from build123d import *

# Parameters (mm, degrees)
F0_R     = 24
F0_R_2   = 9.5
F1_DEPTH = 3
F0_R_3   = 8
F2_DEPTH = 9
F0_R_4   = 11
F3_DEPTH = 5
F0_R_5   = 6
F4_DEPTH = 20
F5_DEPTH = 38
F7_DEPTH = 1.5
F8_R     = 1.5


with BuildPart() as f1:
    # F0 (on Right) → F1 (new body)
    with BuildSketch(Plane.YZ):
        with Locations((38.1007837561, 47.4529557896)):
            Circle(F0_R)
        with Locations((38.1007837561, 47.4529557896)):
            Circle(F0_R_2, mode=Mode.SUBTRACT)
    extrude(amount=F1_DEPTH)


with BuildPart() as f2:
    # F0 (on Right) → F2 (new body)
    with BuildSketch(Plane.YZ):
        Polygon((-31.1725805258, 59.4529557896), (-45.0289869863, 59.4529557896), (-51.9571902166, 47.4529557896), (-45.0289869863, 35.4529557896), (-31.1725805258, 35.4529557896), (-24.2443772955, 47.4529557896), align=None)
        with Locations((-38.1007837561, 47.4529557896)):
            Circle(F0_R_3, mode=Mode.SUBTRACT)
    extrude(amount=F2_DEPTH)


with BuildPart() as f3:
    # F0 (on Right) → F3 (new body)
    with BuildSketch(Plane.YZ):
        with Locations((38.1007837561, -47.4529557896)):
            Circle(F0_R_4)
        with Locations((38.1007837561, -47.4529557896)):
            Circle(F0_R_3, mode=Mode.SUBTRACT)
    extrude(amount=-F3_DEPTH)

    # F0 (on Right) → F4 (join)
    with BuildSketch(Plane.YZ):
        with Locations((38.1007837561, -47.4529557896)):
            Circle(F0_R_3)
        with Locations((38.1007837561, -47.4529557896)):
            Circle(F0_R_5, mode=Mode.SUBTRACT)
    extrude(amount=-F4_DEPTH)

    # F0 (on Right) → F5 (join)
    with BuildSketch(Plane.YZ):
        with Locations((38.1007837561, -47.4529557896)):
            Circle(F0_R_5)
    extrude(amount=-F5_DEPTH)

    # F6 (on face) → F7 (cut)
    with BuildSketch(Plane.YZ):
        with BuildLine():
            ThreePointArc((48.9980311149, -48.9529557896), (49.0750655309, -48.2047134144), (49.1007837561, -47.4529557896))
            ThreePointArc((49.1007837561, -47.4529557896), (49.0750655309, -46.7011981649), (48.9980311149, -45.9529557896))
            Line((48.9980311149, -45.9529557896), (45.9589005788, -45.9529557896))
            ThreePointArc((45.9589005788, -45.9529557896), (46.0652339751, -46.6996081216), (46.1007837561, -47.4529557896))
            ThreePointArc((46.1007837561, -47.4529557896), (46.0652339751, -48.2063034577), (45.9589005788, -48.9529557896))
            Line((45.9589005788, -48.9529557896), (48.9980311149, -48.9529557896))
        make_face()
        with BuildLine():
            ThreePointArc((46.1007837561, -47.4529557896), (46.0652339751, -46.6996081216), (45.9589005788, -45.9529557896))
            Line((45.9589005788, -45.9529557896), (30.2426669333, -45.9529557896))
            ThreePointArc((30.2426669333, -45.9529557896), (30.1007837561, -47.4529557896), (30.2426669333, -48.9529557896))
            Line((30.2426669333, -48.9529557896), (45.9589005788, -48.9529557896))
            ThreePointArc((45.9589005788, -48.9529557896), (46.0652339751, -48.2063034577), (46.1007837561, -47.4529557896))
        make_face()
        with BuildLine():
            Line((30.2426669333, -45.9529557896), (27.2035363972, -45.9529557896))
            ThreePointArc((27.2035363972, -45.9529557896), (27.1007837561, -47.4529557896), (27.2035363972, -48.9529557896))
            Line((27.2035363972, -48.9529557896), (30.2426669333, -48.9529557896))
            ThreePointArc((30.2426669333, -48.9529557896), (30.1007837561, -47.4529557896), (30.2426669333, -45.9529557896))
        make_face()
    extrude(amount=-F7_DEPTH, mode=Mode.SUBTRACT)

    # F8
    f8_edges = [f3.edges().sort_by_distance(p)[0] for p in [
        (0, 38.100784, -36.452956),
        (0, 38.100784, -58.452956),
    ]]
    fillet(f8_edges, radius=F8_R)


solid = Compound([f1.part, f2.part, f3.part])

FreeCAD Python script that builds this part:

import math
import FreeCAD as App
import Part
import Sketcher
Q = App.Units.Quantity


def edges_at(feature, points):
    """Names of the edges that pass closest to the given points."""
    edges = feature.Shape.Edges
    near = lambda p: min(range(len(edges)), key=lambda i: edges[i].distToShape(Part.Vertex(*p))[0])
    return sorted({f"Edge{near(p) + 1}" for p in points})

doc = App.newDocument("Part")
body = doc.addObject("PartDesign::Body", "Body")

# Sketch on YZ plane
sketch1 = body.newObject("Sketcher::SketchObject", "Sketch")
sketch1.AttachmentSupport = (doc.getObject("YZ_Plane"), [""])
sketch1.MapMode = "FlatFace"
sketch1.addGeometry(Part.Circle(App.Vector(38, 47, 0), App.Vector(0, 0, 1), 24), False)
sketch1.addGeometry(Part.Circle(App.Vector(38, 47, 0), App.Vector(0, 0, 1), 10), False)
sketch1.addConstraint(Sketcher.Constraint("Coincident", 1, 3, 0, 3))
sketch1.addConstraint(Sketcher.Constraint("Diameter", 0, 48.0))
sketch1.addConstraint(Sketcher.Constraint("Diameter", 1, 19.0))
sketch1.addConstraint(Sketcher.Constraint("DistanceX", -1, 1, 0, 3, 38.100784))
sketch1.addConstraint(Sketcher.Constraint("DistanceY", -1, 1, 0, 3, 47.452956))
pad1 = body.newObject("PartDesign::Pad", "Pad")
pad1.Profile = sketch1
pad1.Length = 3
body2 = doc.addObject("PartDesign::Body", "Body001")

# Sketch on YZ plane
sketch2 = body2.newObject("Sketcher::SketchObject", "Sketch001")
sketch2.AttachmentSupport = (doc.getObject("YZ_Plane001"), [""])
sketch2.MapMode = "FlatFace"
sketch2.addGeometry(Part.LineSegment(App.Vector(-31, 59, 0), App.Vector(-45, 59, 0)), False)
sketch2.addGeometry(Part.LineSegment(App.Vector(-45, 59, 0), App.Vector(-52, 47, 0)), False)
sketch2.addGeometry(Part.LineSegment(App.Vector(-52, 47, 0), App.Vector(-45, 35, 0)), False)
sketch2.addGeometry(Part.LineSegment(App.Vector(-45, 35, 0), App.Vector(-31, 35, 0)), False)
sketch2.addGeometry(Part.LineSegment(App.Vector(-31, 35, 0), App.Vector(-24, 47, 0)), False)
sketch2.addGeometry(Part.LineSegment(App.Vector(-24, 47, 0), App.Vector(-31, 59, 0)), False)
sketch2.addGeometry(Part.Circle(App.Vector(-38, 47, 0), App.Vector(0, 0, 1), 8), False)
sketch2.addConstraint(Sketcher.Constraint("Coincident", 0, 2, 1, 1))
sketch2.addConstraint(Sketcher.Constraint("Coincident", 1, 2, 2, 1))
sketch2.addConstraint(Sketcher.Constraint("Coincident", 2, 2, 3, 1))
sketch2.addConstraint(Sketcher.Constraint("Coincident", 3, 2, 4, 1))
sketch2.addConstraint(Sketcher.Constraint("Coincident", 4, 2, 5, 1))
sketch2.addConstraint(Sketcher.Constraint("Coincident", 5, 2, 0, 1))
sketch2.addConstraint(Sketcher.Constraint("Horizontal", 0))
sketch2.addConstraint(Sketcher.Constraint("Horizontal", 3))
sketch2.addConstraint(Sketcher.Constraint("Parallel", 1, 4))
sketch2.addConstraint(Sketcher.Constraint("Parallel", 2, 5))
sketch2.addConstraint(Sketcher.Constraint("Horizontal", 6, 3, 1, 2))
sketch2.addConstraint(Sketcher.Constraint("Horizontal", 1, 2, 4, 2))
sketch2.addConstraint(Sketcher.Constraint("Vertical", 0, 2, 2, 2))
sketch2.addConstraint(Sketcher.Constraint("Vertical", 3, 2, 5, 2))
sketch2.addConstraint(Sketcher.Constraint("Diameter", 6, 16.0))
sketch2.addConstraint(Sketcher.Constraint("Angle", 1, Q("-120 deg")))
sketch2.addConstraint(Sketcher.Constraint("DistanceY", 6, 3, 0, 2, 12.0))
sketch2.addConstraint(Sketcher.Constraint("DistanceX", 0, 2, 0, 1, 13.856406))
sketch2.addConstraint(Sketcher.Constraint("DistanceX", 1, 2, -1, 1, 51.95719))
sketch2.addConstraint(Sketcher.Constraint("DistanceX", 6, 3, -1, 1, 38.100784))
sketch2.addConstraint(Sketcher.Constraint("DistanceY", -1, 1, 6, 3, 47.452956))
pad2 = body2.newObject("PartDesign::Pad", "Pad001")
pad2.Profile = sketch2
pad2.Length = 9
body3 = doc.addObject("PartDesign::Body", "Body002")

# Sketch on YZ plane
sketch3 = body3.newObject("Sketcher::SketchObject", "Sketch002")
sketch3.AttachmentSupport = (doc.getObject("YZ_Plane002"), [""])
sketch3.MapMode = "FlatFace"
sketch3.addGeometry(Part.Circle(App.Vector(38, -47, 0), App.Vector(0, 0, 1), 11), False)
sketch3.addGeometry(Part.Circle(App.Vector(38, -47, 0), App.Vector(0, 0, 1), 8), False)
sketch3.addConstraint(Sketcher.Constraint("Coincident", 1, 3, 0, 3))
sketch3.addConstraint(Sketcher.Constraint("Diameter", 0, 22.0))
sketch3.addConstraint(Sketcher.Constraint("Diameter", 1, 16.0))
sketch3.addConstraint(Sketcher.Constraint("DistanceX", -1, 1, 0, 3, 38.100784))
sketch3.addConstraint(Sketcher.Constraint("DistanceY", 0, 3, -1, 1, 47.452956))
pad3 = body3.newObject("PartDesign::Pad", "Pad002")
pad3.Profile = sketch3
pad3.Length = 5
pad3.Reversed = True

# Sketch on YZ plane
sketch4 = body3.newObject("Sketcher::SketchObject", "Sketch003")
sketch4.AttachmentSupport = (doc.getObject("YZ_Plane002"), [""])
sketch4.MapMode = "FlatFace"
sketch4.addGeometry(Part.Circle(App.Vector(38, -47, 0), App.Vector(0, 0, 1), 8), False)
sketch4.addGeometry(Part.Circle(App.Vector(38, -47, 0), App.Vector(0, 0, 1), 6), False)
sketch4.addConstraint(Sketcher.Constraint("Coincident", 1, 3, 0, 3))
sketch4.addConstraint(Sketcher.Constraint("Diameter", 0, 16.0))
sketch4.addConstraint(Sketcher.Constraint("Diameter", 1, 12.0))
sketch4.addConstraint(Sketcher.Constraint("DistanceX", -1, 1, 0, 3, 38.100784))
sketch4.addConstraint(Sketcher.Constraint("DistanceY", 0, 3, -1, 1, 47.452956))
pad4 = body3.newObject("PartDesign::Pad", "Pad003")
pad4.Profile = sketch4
pad4.Length = 20
pad4.Reversed = True

# Sketch on YZ plane
sketch5 = body3.newObject("Sketcher::SketchObject", "Sketch004")
sketch5.AttachmentSupport = (doc.getObject("YZ_Plane002"), [""])
sketch5.MapMode = "FlatFace"
sketch5.addGeometry(Part.Circle(App.Vector(38, -47, 0), App.Vector(0, 0, 1), 6), False)
sketch5.addConstraint(Sketcher.Constraint("Diameter", 0, 12.0))
sketch5.addConstraint(Sketcher.Constraint("DistanceX", -1, 1, 0, 3, 38.100784))
sketch5.addConstraint(Sketcher.Constraint("DistanceY", 0, 3, -1, 1, 47.452956))
pad5 = body3.newObject("PartDesign::Pad", "Pad004")
pad5.Profile = sketch5
pad5.Length = 38
pad5.Reversed = True

# Sketch on YZ plane
sketch6 = body3.newObject("Sketcher::SketchObject", "Sketch005")
sketch6.AttachmentSupport = (doc.getObject("YZ_Plane002"), [""])
sketch6.MapMode = "FlatFace"
sketch6.addGeometry(Part.ArcOfCircle(Part.Circle(App.Vector(38.1, -47.5, 0), App.Vector(0, 0, 1), 11), math.radians(-7.84), math.radians(0)), False)
sketch6.addGeometry(Part.ArcOfCircle(Part.Circle(App.Vector(38.1, -47.5, 0), App.Vector(0, 0, 1), 11), math.radians(0), math.radians(7.84)), False)
sketch6.addGeometry(Part.LineSegment(App.Vector(49, -46, 0), App.Vector(27.2, -46, 0)), False)
sketch6.addGeometry(Part.ArcOfCircle(Part.Circle(App.Vector(38.1, -47.5, 0), App.Vector(0, 0, 1), 11), math.radians(172.16), math.radians(187.84)), False)
sketch6.addGeometry(Part.LineSegment(App.Vector(27.2, -49, 0), App.Vector(49, -49, 0)), False)
sketch6.addConstraint(Sketcher.Constraint("Tangent", 0, 2, 1, 1))
sketch6.addConstraint(Sketcher.Constraint("Coincident", 1, 2, 2, 1))
sketch6.addConstraint(Sketcher.Constraint("Coincident", 2, 2, 3, 1))
sketch6.addConstraint(Sketcher.Constraint("Coincident", 3, 2, 4, 1))
sketch6.addConstraint(Sketcher.Constraint("Coincident", 4, 2, 0, 1))
sketch6.addConstraint(Sketcher.Constraint("Horizontal", 2))
sketch6.addConstraint(Sketcher.Constraint("Horizontal", 4))
sketch6.addConstraint(Sketcher.Constraint("Coincident", 3, 3, 0, 3))
sketch6.addConstraint(Sketcher.Constraint("Equal", 0, 1))
sketch6.addConstraint(Sketcher.Constraint("Equal", 1, 3))
sketch6.addConstraint(Sketcher.Constraint("Horizontal", 3, 3, 0, 2))
sketch6.addConstraint(Sketcher.Constraint("Vertical", 2, 2, 3, 2))
sketch6.addConstraint(Sketcher.Constraint("Radius", 0, 11.0))
sketch6.addConstraint(Sketcher.Constraint("DistanceY", 3, 2, 2, 2, 3.0))
sketch6.addConstraint(Sketcher.Constraint("DistanceX", -1, 1, 1, 2, 48.998031))
sketch6.addConstraint(Sketcher.Constraint("DistanceY", 0, 3, -1, 1, 47.452956))
pocket1 = body3.newObject("PartDesign::Pocket", "Pocket")
pocket1.Profile = sketch6
pocket1.Length = 1.5
doc.recompute()

fillet = body3.newObject("PartDesign::Fillet", "Fillet")
fillet.Base = (pocket1, edges_at(pocket1, [(0, 38.101, -36.453), (0, 38.101, -58.453)]))
fillet.Radius = 1.5

doc.recompute()
